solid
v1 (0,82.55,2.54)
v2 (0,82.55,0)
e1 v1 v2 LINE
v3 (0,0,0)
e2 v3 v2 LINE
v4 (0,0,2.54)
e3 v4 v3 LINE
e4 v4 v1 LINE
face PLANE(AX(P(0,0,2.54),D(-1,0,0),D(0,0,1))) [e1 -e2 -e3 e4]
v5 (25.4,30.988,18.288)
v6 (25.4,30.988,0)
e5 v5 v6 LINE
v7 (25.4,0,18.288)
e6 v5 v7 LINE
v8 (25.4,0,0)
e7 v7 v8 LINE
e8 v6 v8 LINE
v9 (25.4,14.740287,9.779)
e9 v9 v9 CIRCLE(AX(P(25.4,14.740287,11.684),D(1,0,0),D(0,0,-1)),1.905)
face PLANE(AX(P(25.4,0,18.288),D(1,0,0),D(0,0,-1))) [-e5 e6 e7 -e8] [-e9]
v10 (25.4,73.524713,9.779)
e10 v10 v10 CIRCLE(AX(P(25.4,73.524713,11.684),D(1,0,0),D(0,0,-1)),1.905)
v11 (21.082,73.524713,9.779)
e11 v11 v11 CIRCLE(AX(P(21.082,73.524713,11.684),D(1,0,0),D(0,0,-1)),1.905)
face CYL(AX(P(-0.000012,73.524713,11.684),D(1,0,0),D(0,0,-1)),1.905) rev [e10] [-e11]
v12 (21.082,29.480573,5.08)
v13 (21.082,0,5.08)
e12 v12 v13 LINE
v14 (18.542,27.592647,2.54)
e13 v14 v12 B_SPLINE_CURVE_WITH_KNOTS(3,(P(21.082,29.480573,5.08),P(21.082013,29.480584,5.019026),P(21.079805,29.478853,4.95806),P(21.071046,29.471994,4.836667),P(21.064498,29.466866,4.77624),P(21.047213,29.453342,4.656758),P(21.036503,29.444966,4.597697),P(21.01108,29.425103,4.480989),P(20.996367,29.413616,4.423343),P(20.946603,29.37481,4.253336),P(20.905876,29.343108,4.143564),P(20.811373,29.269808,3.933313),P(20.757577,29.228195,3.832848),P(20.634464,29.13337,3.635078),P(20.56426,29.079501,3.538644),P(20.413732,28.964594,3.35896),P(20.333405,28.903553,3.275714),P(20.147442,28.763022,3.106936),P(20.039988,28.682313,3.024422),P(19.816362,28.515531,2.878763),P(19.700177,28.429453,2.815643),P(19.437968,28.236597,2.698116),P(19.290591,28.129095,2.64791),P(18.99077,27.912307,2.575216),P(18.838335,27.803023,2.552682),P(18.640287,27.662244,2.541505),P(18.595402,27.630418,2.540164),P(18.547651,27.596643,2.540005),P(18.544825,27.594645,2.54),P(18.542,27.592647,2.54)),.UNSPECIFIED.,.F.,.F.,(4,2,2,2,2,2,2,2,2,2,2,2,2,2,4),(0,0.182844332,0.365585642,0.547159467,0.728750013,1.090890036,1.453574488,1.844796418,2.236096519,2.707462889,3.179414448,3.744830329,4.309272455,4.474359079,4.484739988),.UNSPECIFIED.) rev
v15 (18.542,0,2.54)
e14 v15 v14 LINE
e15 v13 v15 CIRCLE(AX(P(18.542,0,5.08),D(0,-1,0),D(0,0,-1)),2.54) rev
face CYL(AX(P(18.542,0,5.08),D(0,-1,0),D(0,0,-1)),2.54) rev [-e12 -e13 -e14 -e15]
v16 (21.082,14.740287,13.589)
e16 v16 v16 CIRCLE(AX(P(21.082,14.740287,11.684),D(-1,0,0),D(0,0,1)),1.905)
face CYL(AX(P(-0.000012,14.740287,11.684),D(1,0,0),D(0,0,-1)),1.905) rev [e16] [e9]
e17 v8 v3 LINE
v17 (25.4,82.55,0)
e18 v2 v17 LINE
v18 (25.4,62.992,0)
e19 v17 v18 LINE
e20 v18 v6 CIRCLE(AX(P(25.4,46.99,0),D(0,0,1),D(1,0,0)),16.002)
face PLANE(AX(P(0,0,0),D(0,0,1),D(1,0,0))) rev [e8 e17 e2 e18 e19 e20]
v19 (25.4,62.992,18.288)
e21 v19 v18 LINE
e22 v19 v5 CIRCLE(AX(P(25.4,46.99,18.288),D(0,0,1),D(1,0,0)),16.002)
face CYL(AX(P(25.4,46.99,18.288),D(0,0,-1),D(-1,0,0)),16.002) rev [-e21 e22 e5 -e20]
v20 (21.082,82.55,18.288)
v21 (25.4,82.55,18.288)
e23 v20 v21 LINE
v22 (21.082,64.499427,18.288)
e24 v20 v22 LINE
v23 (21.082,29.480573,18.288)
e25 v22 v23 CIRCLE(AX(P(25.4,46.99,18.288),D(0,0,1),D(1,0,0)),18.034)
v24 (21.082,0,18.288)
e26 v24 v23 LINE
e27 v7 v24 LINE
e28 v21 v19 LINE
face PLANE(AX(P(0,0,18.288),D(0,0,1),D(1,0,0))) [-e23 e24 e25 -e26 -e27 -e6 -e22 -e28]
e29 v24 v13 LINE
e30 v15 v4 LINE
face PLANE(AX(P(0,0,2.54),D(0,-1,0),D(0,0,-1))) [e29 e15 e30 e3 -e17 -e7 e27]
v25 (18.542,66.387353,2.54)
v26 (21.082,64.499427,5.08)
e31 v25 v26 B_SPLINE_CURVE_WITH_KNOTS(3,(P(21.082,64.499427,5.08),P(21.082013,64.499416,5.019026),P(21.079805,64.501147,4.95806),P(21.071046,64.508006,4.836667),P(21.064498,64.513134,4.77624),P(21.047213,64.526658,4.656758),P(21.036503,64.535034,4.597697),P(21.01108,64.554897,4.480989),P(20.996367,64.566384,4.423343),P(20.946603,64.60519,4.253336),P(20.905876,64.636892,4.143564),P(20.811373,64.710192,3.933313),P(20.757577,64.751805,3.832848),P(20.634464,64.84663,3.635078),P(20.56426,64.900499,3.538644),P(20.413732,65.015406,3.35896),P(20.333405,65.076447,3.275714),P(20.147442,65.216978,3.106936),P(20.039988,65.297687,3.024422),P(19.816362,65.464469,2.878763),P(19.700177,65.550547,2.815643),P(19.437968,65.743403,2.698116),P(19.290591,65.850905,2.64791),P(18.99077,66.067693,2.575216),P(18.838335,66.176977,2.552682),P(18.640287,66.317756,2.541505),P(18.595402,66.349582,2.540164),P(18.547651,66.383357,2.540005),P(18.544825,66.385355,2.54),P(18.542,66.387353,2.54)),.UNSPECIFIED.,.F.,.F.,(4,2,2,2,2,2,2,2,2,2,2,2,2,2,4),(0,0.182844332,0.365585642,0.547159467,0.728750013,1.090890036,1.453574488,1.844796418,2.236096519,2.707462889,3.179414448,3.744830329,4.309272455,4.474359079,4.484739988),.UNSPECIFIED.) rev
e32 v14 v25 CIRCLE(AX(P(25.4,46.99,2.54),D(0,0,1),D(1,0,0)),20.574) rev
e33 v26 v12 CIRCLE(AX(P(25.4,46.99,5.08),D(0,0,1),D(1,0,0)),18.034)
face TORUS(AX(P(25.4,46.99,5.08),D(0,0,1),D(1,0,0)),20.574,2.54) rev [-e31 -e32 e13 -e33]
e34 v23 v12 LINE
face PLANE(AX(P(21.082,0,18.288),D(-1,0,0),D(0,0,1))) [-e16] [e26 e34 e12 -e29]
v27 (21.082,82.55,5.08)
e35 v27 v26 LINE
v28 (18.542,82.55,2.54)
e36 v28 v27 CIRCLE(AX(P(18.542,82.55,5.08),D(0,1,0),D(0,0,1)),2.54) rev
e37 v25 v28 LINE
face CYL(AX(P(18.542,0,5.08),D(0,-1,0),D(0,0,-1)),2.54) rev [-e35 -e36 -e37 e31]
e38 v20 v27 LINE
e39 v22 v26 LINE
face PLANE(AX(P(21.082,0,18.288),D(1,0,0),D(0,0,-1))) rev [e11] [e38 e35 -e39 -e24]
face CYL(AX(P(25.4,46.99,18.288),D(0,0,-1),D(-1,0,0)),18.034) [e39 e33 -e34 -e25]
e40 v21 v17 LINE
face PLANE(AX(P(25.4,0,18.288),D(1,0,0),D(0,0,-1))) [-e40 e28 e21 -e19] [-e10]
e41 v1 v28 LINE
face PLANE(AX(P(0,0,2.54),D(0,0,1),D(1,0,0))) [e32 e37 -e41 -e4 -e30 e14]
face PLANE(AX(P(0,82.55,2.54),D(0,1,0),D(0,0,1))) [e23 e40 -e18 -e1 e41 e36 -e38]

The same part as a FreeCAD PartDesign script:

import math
import FreeCAD as App
import Part
import Sketcher
from FreeCAD import Vector
Q = App.Units.Quantity


def edges_at(feature, points):
    """Names of the edges that pass closest to the given points."""
    edges = feature.Shape.Edges
    near = lambda p: min(range(len(edges)), key=lambda i: edges[i].distToShape(Part.Vertex(*p))[0])
    return sorted({f"Edge{near(p) + 1}" for p in points})

doc = App.newDocument("Part")
params = doc.addObject("Spreadsheet::Sheet", "Params")
for row, (alias, value) in enumerate([
    ("sketch1_radius", "0.71 in"),
    ("sketch1_width", "0.83 in"),
    ("sketch1_height", "3.25 in"),
    ("pad1_length", "0.1 in"),
    ("sketch2_radius", "0.63 in"),
    ("sketch2_radius2", "0.71 in"),
    ("sketch2_width", "0.17 in"),
    ("sketch2_height", "1.22 in"),
    ("sketch2_height2", "0.77 in"),
    ("pad2_length", "0.72 in"),
    ("fillet_radius", "0.1 in"),
    ("sketch3_diameter", "0.15 in"),
], start=1):
    params.set(f"A{row}", alias)
    params.set(f"B{row}", "=" + value)
    params.setAlias(f"B{row}", alias)

body = doc.addObject("PartDesign::Body", "Body")

# Sketch on XY plane
sketch1 = body.newObject("Sketcher::SketchObject", "Sketch")
sketch1.AttachmentSupport = (doc.getObject("XY_Plane"), [""])
sketch1.MapMode = "FlatFace"
sketch1.addGeometry([
    Part.LineSegment(Vector(0, 83, 0), Vector(0, 0, 0)),  # 0
    Part.LineSegment(Vector(0, 0, 0), Vector(21, 0, 0)),  # 1
    Part.LineSegment(Vector(21, 0, 0), Vector(21, 29, 0)),  # 2
    Part.ArcOfCircle(Part.Circle(Vector(25, 47, 0), Vector(0, 0, 1), 18), math.radians(104), math.radians(256)),  # 3
    Part.LineSegment(Vector(21, 64, 0), Vector(21, 83, 0)),  # 4
    Part.LineSegment(Vector(21, 83, 0), Vector(0, 83, 0)),  # 5
], False)
sketch1.addConstraint([
    Sketcher.Constraint("Coincident", 0, 2, 1, 1),
    Sketcher.Constraint("Coincident", 1, 2, 2, 1),
    Sketcher.Constraint("Coincident", 2, 2, 3, 2),
    Sketcher.Constraint("Coincident", 3, 1, 4, 1),
    Sketcher.Constraint("Coincident", 4, 2, 5, 1),
    Sketcher.Constraint("Coincident", 5, 2, 0, 1),
    Sketcher.Constraint("Vertical", 0),
    Sketcher.Constraint("Horizontal", 1),
    Sketcher.Constraint("Vertical", 2),
    Sketcher.Constraint("Vertical", 4),
    Sketcher.Constraint("Horizontal", 5),
    Sketcher.Constraint("Coincident", 0, 2, -1, 1),
    Sketcher.Constraint("Vertical", 2, 2, 3, 1),
    Sketcher.Constraint("Radius", 3, Q("0.71 in")),
    Sketcher.Constraint("DistanceX", -1, 1, 3, 3, Q("1 in")),
    Sketcher.Constraint("DistanceX", 1, 1, 1, 2, Q("0.83 in")),
    Sketcher.Constraint("DistanceY", 0, 2, 0, 1, Q("3.25 in")),
    Sketcher.Constraint("DistanceY", 3, 3, 4, 2, Q("1.4 in")),
])
sketch1.setExpression("Constraints[13]", "Params.sketch1_radius")
sketch1.setExpression("Constraints[15]", "Params.sketch1_width")
sketch1.setExpression("Constraints[16]", "Params.sketch1_height")
pad1 = body.newObject("PartDesign::Pad", "Pad")
pad1.Profile = sketch1
pad1.setExpression("Length", "Params.pad1_length")

# Sketch on XY plane
sketch2 = body.newObject("Sketcher::SketchObject", "Sketch001")
sketch2.AttachmentSupport = (doc.getObject("XY_Plane"), [""])
sketch2.MapMode = "FlatFace"
sketch2.addGeometry([
    Part.LineSegment(Vector(21.1, 29.5, 0), Vector(21.1, 0, 0)),  # 0
    Part.LineSegment(Vector(21.1, 0, 0), Vector(25.4, 0, 0)),  # 1
    Part.LineSegment(Vector(25.4, 0, 0), Vector(25.4, 31, 0)),  # 2
    Part.ArcOfCircle(Part.Circle(Vector(25.4, 47, 0), Vector(0, 0, 1), 16), math.radians(90), math.radians(270)),  # 3
    Part.LineSegment(Vector(25.4, 63, 0), Vector(25.4, 82.5, 0)),  # 4
    Part.LineSegment(Vector(25.4, 82.5, 0), Vector(21.1, 82.5, 0)),  # 5
    Part.LineSegment(Vector(21.1, 82.5, 0), Vector(21.1, 64.5, 0)),  # 6
    Part.ArcOfCircle(Part.Circle(Vector(25.4, 47, 0), Vector(0, 0, 1), 18), math.radians(104), math.radians(256)),  # 7
], False)
sketch2.addConstraint([
    Sketcher.Constraint("Coincident", 0, 2, 1, 1),
    Sketcher.Constraint("Coincident", 1, 2, 2, 1),
    Sketcher.Constraint("Coincident", 2, 2, 3, 2),
    Sketcher.Constraint("Coincident", 3, 1, 4, 1),
    Sketcher.Constraint("Coincident", 4, 2, 5, 1),
    Sketcher.Constraint("Coincident", 5, 2, 6, 1),
    Sketcher.Constraint("Coincident", 6, 2, 7, 1),
    Sketcher.Constraint("Coincident", 7, 2, 0, 1),
    Sketcher.Constraint("Vertical", 0),
    Sketcher.Constraint("Horizontal", 1),
    Sketcher.Constraint("Vertical", 2),
    Sketcher.Constraint("Vertical", 4),
    Sketcher.Constraint("Horizontal", 5),
    Sketcher.Constraint("Vertical", 6),
    Sketcher.Constraint("Coincident", 7, 3, 3, 3),
    Sketcher.Constraint("PointOnObject", 0, 2, -1),
    Sketcher.Constraint("Vertical", 7, 3, 1, 2),
    Sketcher.Constraint("Vertical", 2, 2, 3, 1),
    Sketcher.Constraint("Vertical", 0, 2, 5, 2),
    Sketcher.Constraint("Radius", 3, Q("0.63 in")),
    Sketcher.Constraint("Radius", 7, Q("0.71 in")),
    Sketcher.Constraint("DistanceX", -1, 1, 3, 3, Q("1 in")),
    Sketcher.Constraint("DistanceX", 1, 1, 1, 2, Q("0.17 in")),
    Sketcher.Constraint("DistanceY", 2, 1, 2, 2, Q("1.22 in")),
    Sketcher.Constraint("DistanceY", 4, 1, 4, 2, Q("0.77 in")),
])
sketch2.setExpression("Constraints[19]", "Params.sketch2_radius")
sketch2.setExpression("Constraints[20]", "Params.sketch2_radius2")
sketch2.setExpression("Constraints[22]", "Params.sketch2_width")
sketch2.setExpression("Constraints[23]", "Params.sketch2_height")
sketch2.setExpression("Constraints[24]", "Params.sketch2_height2")
pad2 = body.newObject("PartDesign::Pad", "Pad001")
pad2.Profile = sketch2
pad2.setExpression("Length", "Params.pad2_length")
doc.recompute()

fillet = body.newObject("PartDesign::Fillet", "Fillet")
fillet.Base = (pad2, edges_at(pad2, [(21.082, 73.525, 2.54), (21.082, 14.74, 2.54), (7.366, 46.99, 2.54)]))
fillet.setExpression("Radius", "Params.fillet_radius")

# Sketch on YZ plane
sketch3 = body.newObject("Sketcher::SketchObject", "Sketch002")
sketch3.AttachmentSupport = (doc.getObject("YZ_Plane"), [""])
sketch3.MapMode = "FlatFace"
sketch3.addGeometry([
    Part.Circle(Vector(14.7, 11.7, 0), Vector(0, 0, 1), 1.9),
    Part.Circle(Vector(73.5, 11.7, 0), Vector(0, 0, 1), 1.9),
], False)
sketch3.addConstraint([
    Sketcher.Constraint("Equal", 0, 1),
    Sketcher.Constraint("Horizontal", 0, 3, 1, 3),
    Sketcher.Constraint("Diameter", 0, Q("0.15 in")),
    Sketcher.Constraint("DistanceY", -1, 1, 0, 3, Q("0.46 in")),
    Sketcher.Constraint("DistanceX", -1, 1, 0, 3, Q("14.740287 mm")),
    Sketcher.Constraint("DistanceX", -1, 1, 1, 3, Q("73.524713 mm")),
])
sketch3.setExpression("Constraints[2]", "Params.sketch3_diameter")
pocket1 = body.newObject("PartDesign::Pocket", "Pocket")
pocket1.Profile = sketch3
pocket1.Type = "ThroughAll"
pocket1.Midplane = True

doc.recompute()
